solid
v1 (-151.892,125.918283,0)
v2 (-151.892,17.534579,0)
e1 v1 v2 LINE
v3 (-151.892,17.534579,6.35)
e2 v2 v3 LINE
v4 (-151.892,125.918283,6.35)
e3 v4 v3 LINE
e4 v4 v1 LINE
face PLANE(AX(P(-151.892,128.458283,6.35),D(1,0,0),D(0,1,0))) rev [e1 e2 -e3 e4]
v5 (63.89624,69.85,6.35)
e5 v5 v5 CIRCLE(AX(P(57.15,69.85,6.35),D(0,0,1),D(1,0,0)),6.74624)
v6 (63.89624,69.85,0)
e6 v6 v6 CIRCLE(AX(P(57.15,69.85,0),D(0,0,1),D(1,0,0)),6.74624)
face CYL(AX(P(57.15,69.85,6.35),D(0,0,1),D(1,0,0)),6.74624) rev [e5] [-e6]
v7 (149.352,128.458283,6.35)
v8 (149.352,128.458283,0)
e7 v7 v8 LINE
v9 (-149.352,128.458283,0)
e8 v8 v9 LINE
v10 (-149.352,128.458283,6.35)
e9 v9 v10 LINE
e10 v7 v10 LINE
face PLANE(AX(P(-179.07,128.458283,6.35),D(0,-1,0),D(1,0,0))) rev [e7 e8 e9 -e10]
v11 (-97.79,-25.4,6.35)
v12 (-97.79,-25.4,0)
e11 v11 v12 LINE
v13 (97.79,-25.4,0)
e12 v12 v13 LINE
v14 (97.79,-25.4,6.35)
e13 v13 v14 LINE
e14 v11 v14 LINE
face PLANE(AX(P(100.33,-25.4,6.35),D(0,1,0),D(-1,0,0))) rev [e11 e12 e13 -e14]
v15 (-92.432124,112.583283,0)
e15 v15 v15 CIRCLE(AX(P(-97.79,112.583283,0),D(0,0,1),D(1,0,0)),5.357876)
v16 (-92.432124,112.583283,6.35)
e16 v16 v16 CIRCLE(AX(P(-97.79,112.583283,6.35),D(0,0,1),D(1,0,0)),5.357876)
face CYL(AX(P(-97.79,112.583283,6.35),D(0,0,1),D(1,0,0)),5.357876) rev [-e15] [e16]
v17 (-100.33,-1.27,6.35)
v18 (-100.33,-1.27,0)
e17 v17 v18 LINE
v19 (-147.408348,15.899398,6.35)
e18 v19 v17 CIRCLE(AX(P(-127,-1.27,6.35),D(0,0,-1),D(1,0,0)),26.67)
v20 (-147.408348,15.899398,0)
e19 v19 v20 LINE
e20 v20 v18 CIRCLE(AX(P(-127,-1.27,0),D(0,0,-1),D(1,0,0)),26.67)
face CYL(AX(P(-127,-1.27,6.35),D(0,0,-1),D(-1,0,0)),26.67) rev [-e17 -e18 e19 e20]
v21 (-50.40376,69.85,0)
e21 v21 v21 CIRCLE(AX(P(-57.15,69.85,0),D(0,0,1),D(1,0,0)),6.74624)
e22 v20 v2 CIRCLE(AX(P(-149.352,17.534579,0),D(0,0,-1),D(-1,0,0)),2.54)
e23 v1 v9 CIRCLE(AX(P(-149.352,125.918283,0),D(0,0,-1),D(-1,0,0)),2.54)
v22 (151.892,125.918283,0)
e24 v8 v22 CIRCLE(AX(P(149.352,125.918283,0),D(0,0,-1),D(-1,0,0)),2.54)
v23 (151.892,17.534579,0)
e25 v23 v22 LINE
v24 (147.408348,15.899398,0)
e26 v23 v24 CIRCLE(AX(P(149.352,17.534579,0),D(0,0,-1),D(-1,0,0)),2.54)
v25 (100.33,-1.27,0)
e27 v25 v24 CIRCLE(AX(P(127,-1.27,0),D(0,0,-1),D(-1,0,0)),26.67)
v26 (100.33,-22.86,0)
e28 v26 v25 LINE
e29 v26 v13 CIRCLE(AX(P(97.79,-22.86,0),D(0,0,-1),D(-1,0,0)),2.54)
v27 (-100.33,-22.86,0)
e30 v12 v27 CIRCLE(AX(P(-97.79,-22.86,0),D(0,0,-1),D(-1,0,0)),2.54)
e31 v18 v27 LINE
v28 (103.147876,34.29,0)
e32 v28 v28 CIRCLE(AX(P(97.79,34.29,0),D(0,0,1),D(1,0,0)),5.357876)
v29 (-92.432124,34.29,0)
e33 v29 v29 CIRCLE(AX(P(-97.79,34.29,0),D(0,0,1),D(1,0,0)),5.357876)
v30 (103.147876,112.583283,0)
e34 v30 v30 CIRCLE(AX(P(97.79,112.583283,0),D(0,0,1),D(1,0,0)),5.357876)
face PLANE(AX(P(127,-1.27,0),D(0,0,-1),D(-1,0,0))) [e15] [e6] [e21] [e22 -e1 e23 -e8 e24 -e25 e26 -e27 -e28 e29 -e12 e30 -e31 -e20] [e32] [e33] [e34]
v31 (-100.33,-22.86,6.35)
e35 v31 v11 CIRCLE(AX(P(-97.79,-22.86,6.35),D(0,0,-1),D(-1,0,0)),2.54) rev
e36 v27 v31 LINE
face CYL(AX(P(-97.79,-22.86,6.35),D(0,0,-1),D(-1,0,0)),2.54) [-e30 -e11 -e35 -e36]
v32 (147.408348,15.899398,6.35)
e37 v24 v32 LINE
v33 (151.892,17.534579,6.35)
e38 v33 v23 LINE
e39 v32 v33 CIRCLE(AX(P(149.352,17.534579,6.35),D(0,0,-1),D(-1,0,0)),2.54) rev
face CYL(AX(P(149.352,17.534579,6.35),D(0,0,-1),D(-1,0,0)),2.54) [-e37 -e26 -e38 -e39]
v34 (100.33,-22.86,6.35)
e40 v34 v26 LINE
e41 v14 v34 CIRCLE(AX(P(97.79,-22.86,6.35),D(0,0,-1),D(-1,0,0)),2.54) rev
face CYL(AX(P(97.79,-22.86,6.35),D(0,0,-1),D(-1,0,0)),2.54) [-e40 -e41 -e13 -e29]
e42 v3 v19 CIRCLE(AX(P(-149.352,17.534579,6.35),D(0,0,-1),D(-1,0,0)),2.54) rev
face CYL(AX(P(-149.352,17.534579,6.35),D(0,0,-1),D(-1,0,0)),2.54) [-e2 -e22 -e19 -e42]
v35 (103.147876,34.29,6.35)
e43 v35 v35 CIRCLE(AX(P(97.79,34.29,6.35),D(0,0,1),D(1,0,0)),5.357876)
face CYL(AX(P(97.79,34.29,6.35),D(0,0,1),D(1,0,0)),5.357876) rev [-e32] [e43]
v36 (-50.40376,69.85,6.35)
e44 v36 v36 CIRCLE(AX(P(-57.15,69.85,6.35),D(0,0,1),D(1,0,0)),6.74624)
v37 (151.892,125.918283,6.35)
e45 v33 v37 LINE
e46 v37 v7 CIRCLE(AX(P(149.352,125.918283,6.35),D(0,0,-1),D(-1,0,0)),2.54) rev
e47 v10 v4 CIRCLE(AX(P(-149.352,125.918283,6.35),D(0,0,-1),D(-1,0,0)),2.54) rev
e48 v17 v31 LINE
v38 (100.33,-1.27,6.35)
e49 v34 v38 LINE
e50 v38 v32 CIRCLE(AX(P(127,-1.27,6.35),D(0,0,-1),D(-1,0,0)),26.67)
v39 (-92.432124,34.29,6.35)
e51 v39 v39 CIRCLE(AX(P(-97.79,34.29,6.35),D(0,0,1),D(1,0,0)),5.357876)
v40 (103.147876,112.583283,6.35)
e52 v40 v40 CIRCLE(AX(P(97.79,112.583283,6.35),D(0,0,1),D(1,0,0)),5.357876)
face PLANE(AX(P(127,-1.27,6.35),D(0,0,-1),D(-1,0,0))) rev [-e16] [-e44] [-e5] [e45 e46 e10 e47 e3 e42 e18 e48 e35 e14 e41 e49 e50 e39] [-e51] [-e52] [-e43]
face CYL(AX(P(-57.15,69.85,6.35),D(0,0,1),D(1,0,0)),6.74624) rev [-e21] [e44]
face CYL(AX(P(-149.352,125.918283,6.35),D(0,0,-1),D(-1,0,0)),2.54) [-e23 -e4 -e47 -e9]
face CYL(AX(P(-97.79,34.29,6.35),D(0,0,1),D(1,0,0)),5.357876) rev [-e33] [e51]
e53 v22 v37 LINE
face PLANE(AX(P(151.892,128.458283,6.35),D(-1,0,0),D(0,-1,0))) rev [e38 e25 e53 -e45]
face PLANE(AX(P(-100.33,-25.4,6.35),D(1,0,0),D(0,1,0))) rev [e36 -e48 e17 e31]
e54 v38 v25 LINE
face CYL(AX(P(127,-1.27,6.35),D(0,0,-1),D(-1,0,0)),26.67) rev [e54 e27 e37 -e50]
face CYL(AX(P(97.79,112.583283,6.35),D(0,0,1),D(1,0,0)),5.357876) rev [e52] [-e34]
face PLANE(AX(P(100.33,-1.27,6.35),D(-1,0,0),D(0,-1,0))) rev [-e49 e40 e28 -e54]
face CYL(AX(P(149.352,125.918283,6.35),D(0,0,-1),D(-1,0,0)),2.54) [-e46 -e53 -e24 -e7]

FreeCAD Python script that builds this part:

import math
import FreeCAD as App
import Part
import Sketcher

V = App.Vector
Q = App.Units.Quantity


def edges_at(feature, points):
    """Names of the edges that pass closest to the given points."""
    edges = feature.Shape.Edges
    near = lambda p: min(range(len(edges)), key=lambda i: edges[i].distToShape(Part.Vertex(*p))[0])
    return sorted({f"Edge{near(p) + 1}" for p in points})

doc = App.newDocument("Part")
params = doc.addObject("Spreadsheet::Sheet", "Params")
for row, (alias, value) in enumerate([
    ("sketch1_width", "1 in"),
    ("sketch1_radius", "1.05 in"),
    ("sketch1_width2", "7.9 in"),
    ("sketch1_height", "0.95 in"),
    ("pad1_length", "0.25 in"),
    ("sketch2_width", "1 in"),
    ("sketch2_radius", "1.05 in"),
    ("sketch2_width2", "1.07 in"),
    ("sketch2_height", "0.95 in"),
    ("hole_diameter", "10.715752 mm"),
    ("fillet_radius", "0.1 in"),
    ("hole2_diameter", "0.5312 in"),
], start=1):
    params.set(f"A{row}", alias)
    params.set(f"B{row}", "=" + value)
    params.setAlias(f"B{row}", alias)

body = doc.addObject("PartDesign::Body", "Body")

# Sketch on XY plane
sketch1 = doc.addObject("Sketcher::SketchObject", "Sketch")
body.addObject(sketch1)
sketch1.AttachmentSupport = (doc.XY_Plane, [""])
sketch1.MapMode = "FlatFace"
sketch1.addGeometry(Part.LineSegment(V(-179.07, 128.458283, 0), V(-179.07, -25.4, 0)), False)
sketch1.addGeometry(Part.LineSegment(V(-179.07, -25.4, 0), V(-153.67, -25.4, 0)), False)
sketch1.addGeometry(Part.LineSegment(V(-153.67, -25.4, 0), V(-153.67, -1.27, 0)), False)
sketch1.addGeometry(Part.ArcOfCircle(Part.Circle(V(-127, -1.27, 0), V(0, 0, 1), 26.67), math.radians(0), math.radians(180)), False)
sketch1.addGeometry(Part.LineSegment(V(-100.33, -1.27, 0), V(-100.33, -25.4, 0)), False)
sketch1.addGeometry(Part.LineSegment(V(-100.33, -25.4, 0), V(100.33, -25.4, 0)), False)
sketch1.addGeometry(Part.LineSegment(V(100.33, -25.4, 0), V(100.33, -1.27, 0)), False)
sketch1.addGeometry(Part.ArcOfCircle(Part.Circle(V(127, -1.27, 0), V(0, 0, 1), 26.67), math.radians(0), math.radians(180)), False)
sketch1.addGeometry(Part.LineSegment(V(153.67, -1.27, 0), V(153.67, -25.4, 0)), False)
sketch1.addGeometry(Part.LineSegment(V(153.67, -25.4, 0), V(179.07, -25.4, 0)), False)
sketch1.addGeometry(Part.LineSegment(V(179.07, -25.4, 0), V(179.07, 128.458283, 0)), False)
sketch1.addGeometry(Part.LineSegment(V(179.07, 128.458283, 0), V(-179.07, 128.458283, 0)), False)
sketch1.addConstraint(Sketcher.Constraint("Coincident", 0, 2, 1, 1))
sketch1.addConstraint(Sketcher.Constraint("Coincident", 1, 2, 2, 1))
sketch1.addConstraint(Sketcher.Constraint("Tangent", 2, 2, 3, 2))
sketch1.addConstraint(Sketcher.Constraint("Tangent", 3, 1, 4, 1))
sketch1.addConstraint(Sketcher.Constraint("Coincident", 4, 2, 5, 1))
sketch1.addConstraint(Sketcher.Constraint("Coincident", 5, 2, 6, 1))
sketch1.addConstraint(Sketcher.Constraint("Tangent", 6, 2, 7, 2))
sketch1.addConstraint(Sketcher.Constraint("Tangent", 7, 1, 8, 1))
sketch1.addConstraint(Sketcher.Constraint("Coincident", 8, 2, 9, 1))
sketch1.addConstraint(Sketcher.Constraint("Coincident", 9, 2, 10, 1))
sketch1.addConstraint(Sketcher.Constraint("Coincident", 10, 2, 11, 1))
sketch1.addConstraint(Sketcher.Constraint("Coincident", 11, 2, 0, 1))
sketch1.addConstraint(Sketcher.Constraint("Vertical", 0))
sketch1.addConstraint(Sketcher.Constraint("Horizontal", 1))
sketch1.addConstraint(Sketcher.Constraint("Vertical", 2))
sketch1.addConstraint(Sketcher.Constraint("Vertical", 4))
sketch1.addConstraint(Sketcher.Constraint("Horizontal", 5))
sketch1.addConstraint(Sketcher.Constraint("Vertical", 6))
sketch1.addConstraint(Sketcher.Constraint("Vertical", 8))
sketch1.addConstraint(Sketcher.Constraint("Horizontal", 9))
sketch1.addConstraint(Sketcher.Constraint("Vertical", 10))
sketch1.addConstraint(Sketcher.Constraint("Horizontal", 11))
sketch1.addConstraint(Sketcher.Constraint("Equal", 3, 7))
sketch1.addConstraint(Sketcher.Constraint("Symmetric", 3, 3, 7, 3, -2))
sketch1.addConstraint(Sketcher.Constraint("Symmetric", 0, 2, 9, 2, -2))
sketch1.addConstraint(Sketcher.Constraint("Horizontal", 1, 2, 4, 2))
sketch1.addConstraint(Sketcher.Constraint("DistanceX", 1, 1, 1, 2, Q("1 in")))
sketch1.addConstraint(Sketcher.Constraint("Radius", 3, Q("1.05 in")))
sketch1.addConstraint(Sketcher.Constraint("DistanceX", 5, 1, 5, 2, Q("7.9 in")))
sketch1.addConstraint(Sketcher.Constraint("DistanceY", 0, 2, -1, 1, Q("1 in")))
sketch1.addConstraint(Sketcher.Constraint("DistanceY", 2, 1, 2, 2, Q("0.95 in")))
sketch1.addConstraint(Sketcher.Constraint("DistanceY", 0, 2, 0, 1, Q("153.858283 mm")))
sketch1.setExpression("Constraints[26]", "Params.sketch1_width")
sketch1.setExpression("Constraints[27]", "Params.sketch1_radius")
sketch1.setExpression("Constraints[28]", "Params.sketch1_width2")
sketch1.setExpression("Constraints[30]", "Params.sketch1_height")
pad1 = doc.addObject("PartDesign::Pad", "Pad")
body.addObject(pad1)
pad1.Profile = sketch1
pad1.setExpression("Length", "Params.pad1_length")

# Sketch on XY plane
sketch2 = doc.addObject("Sketcher::SketchObject", "Sketch001")
body.addObject(sketch2)
sketch2.AttachmentSupport = (doc.XY_Plane, [""])
sketch2.MapMode = "FlatFace"
sketch2.addGeometry(Part.LineSegment(V(151.892, 8.304823, 0), V(151.892, 128.458283, 0)), False)
sketch2.addGeometry(Part.LineSegment(V(151.892, 128.458283, 0), V(179.07, 128.458283, 0)), False)
sketch2.addGeometry(Part.LineSegment(V(179.07, 128.458283, 0), V(179.07, -25.4, 0)), False)
sketch2.addGeometry(Part.LineSegment(V(179.07, -25.4, 0), V(153.67, -25.4, 0)), False)
sketch2.addGeometry(Part.LineSegment(V(153.67, -25.4, 0), V(153.67, -1.27, 0)), False)
sketch2.addGeometry(Part.ArcOfCircle(Part.Circle(V(127, -1.27, 0), V(0, 0, 1), 26.67), math.radians(0), math.radians(21.03947)), False)
sketch2.addGeometry(Part.LineSegment(V(-153.67, -1.27, 0), V(-153.67, -25.4, 0)), False)
sketch2.addGeometry(Part.LineSegment(V(-153.67, -25.4, 0), V(-179.07, -25.4, 0)), False)
sketch2.addGeometry(Part.LineSegment(V(-179.07, -25.4, 0), V(-179.07, 128.458283, 0)), False)
sketch2.addGeometry(Part.LineSegment(V(-179.07, 128.458283, 0), V(-151.892, 128.458283, 0)), False)
sketch2.addGeometry(Part.LineSegment(V(-151.892, 128.458283, 0), V(-151.892, 8.304823, 0)), False)
sketch2.addGeometry(Part.ArcOfCircle(Part.Circle(V(-127, -1.27, 0), V(0, 0, 1), 26.67), math.radians(158.96053), math.radians(180)), False)
sketch2.addConstraint(Sketcher.Constraint("Coincident", 0, 2, 1, 1))
sketch2.addConstraint(Sketcher.Constraint("Coincident", 1, 2, 2, 1))
sketch2.addConstraint(Sketcher.Constraint("Coincident", 2, 2, 3, 1))
sketch2.addConstraint(Sketcher.Constraint("Coincident", 3, 2, 4, 1))
sketch2.addConstraint(Sketcher.Constraint("Tangent", 4, 2, 5, 1))
sketch2.addConstraint(Sketcher.Constraint("Coincident", 5, 2, 0, 1))
sketch2.addConstraint(Sketcher.Constraint("Coincident", 6, 2, 7, 1))
sketch2.addConstraint(Sketcher.Constraint("Coincident", 7, 2, 8, 1))
sketch2.addConstraint(Sketcher.Constraint("Coincident", 8, 2, 9, 1))
sketch2.addConstraint(Sketcher.Constraint("Coincident", 9, 2, 10, 1))
sketch2.addConstraint(Sketcher.Constraint("Coincident", 10, 2, 11, 1))
sketch2.addConstraint(Sketcher.Constraint("Tangent", 11, 2, 6, 1))
sketch2.addConstraint(Sketcher.Constraint("Vertical", 0))
sketch2.addConstraint(Sketcher.Constraint("Horizontal", 1))
sketch2.addConstraint(Sketcher.Constraint("Vertical", 2))
sketch2.addConstraint(Sketcher.Constraint("Horizontal", 3))
sketch2.addConstraint(Sketcher.Constraint("Vertical", 4))
sketch2.addConstraint(Sketcher.Constraint("Vertical", 6))
sketch2.addConstraint(Sketcher.Constraint("Horizontal", 7))
sketch2.addConstraint(Sketcher.Constraint("Vertical", 8))
sketch2.addConstraint(Sketcher.Constraint("Horizontal", 9))
sketch2.addConstraint(Sketcher.Constraint("Vertical", 10))
sketch2.addConstraint(Sketcher.Constraint("Equal", 5, 11))
sketch2.addConstraint(Sketcher.Constraint("Symmetric", 5, 3, 11, 3, -2))
sketch2.addConstraint(Sketcher.Constraint("Symmetric", 2, 2, 7, 2, -2))
sketch2.addConstraint(Sketcher.Constraint("Symmetric", 0, 2, 9, 2, -2))
sketch2.addConstraint(Sketcher.Constraint("DistanceX", 3, 2, 3, 1, Q("1 in")))
sketch2.addConstraint(Sketcher.Constraint("Radius", 5, Q("1.05 in")))
sketch2.addConstraint(Sketcher.Constraint("DistanceX", -1, 1, 5, 3, Q("5 in")))
sketch2.addConstraint(Sketcher.Constraint("DistanceY", 2, 2, -1, 1, Q("1 in")))
sketch2.addConstraint(Sketcher.Constraint("DistanceX", 1, 1, 1, 2, Q("1.07 in")))
sketch2.addConstraint(Sketcher.Constraint("DistanceY", 4, 1, 4, 2, Q("0.95 in")))
sketch2.addConstraint(Sketcher.Constraint("DistanceY", 0, 1, 0, 2, Q("120.15346 mm")))
sketch2.setExpression("Constraints[26]", "Params.sketch2_width")
sketch2.setExpression("Constraints[27]", "Params.sketch2_radius")
sketch2.setExpression("Constraints[30]", "Params.sketch2_width2")
sketch2.setExpression("Constraints[31]", "Params.sketch2_height")
pocket1 = doc.addObject("PartDesign::Pocket", "Pocket")
body.addObject(pocket1)
pocket1.Profile = sketch2
pocket1.Type = "ThroughAll"
pocket1.Reversed = True

# Sketch on XY plane
sketch3 = doc.addObject("Sketcher::SketchObject", "Sketch002")
body.addObject(sketch3)
sketch3.AttachmentSupport = (doc.XY_Plane, [""])
sketch3.MapMode = "FlatFace"
sketch3.AttachmentOffset = App.Placement(V(0, 0, 0.25 * 25.4), App.Rotation())
sketch3.addGeometry(Part.Circle(V(-97.79, 34.29, 0), V(0, 0, 1), 5.357876), False)
sketch3.addGeometry(Part.Circle(V(-97.79, 112.583283, 0), V(0, 0, 1), 5.357876), False)
sketch3.addGeometry(Part.Circle(V(97.79, 34.29, 0), V(0, 0, 1), 5.357876), False)
sketch3.addGeometry(Part.Circle(V(97.79, 112.583283, 0), V(0, 0, 1), 5.357876), False)
sketch3.addConstraint(Sketcher.Constraint("Equal", 0, 1))
sketch3.addConstraint(Sketcher.Constraint("Equal", 1, 2))
sketch3.addConstraint(Sketcher.Constraint("Equal", 2, 3))
sketch3.addConstraint(Sketcher.Constraint("Symmetric", 0, 3, 2, 3, -2))
sketch3.addConstraint(Sketcher.Constraint("Symmetric", 1, 3, 3, 3, -2))
sketch3.addConstraint(Sketcher.Constraint("Vertical", 0, 3, 1, 3))
sketch3.addConstraint(Sketcher.Constraint("DistanceX", 0, 3, 2, 3, Q("7.7 in")))
sketch3.addConstraint(Sketcher.Constraint("DistanceY", -1, 1, 0, 3, Q("1.35 in")))
sketch3.addConstraint(Sketcher.Constraint("Diameter", 0, Q("10.715752 mm")))
sketch3.addConstraint(Sketcher.Constraint("DistanceY", -1, 1, 1, 3, Q("112.583283 mm")))
doc.recompute()
hole = doc.addObject("PartDesign::Hole", "Hole")
body.addObject(hole)
hole.Profile = sketch3
hole.ThreadType = "None"
hole.setExpression("Diameter", "Params.hole_diameter")
hole.DepthType = "ThroughAll"
doc.recompute()

fillet = doc.addObject("PartDesign::Fillet", "Fillet")
body.addObject(fillet)
fillet.Base = (hole, edges_at(hole, [
    (100.33, -25.4, 3.175),
    (-100.33, -25.4, 3.175),
    (151.892, 128.458, 3.175),
    (151.892, 8.305, 3.175),
    (-151.892, 8.305, 3.175),
    (-151.892, 128.458, 3.175),
]))
fillet.setExpression("Radius", "Params.fillet_radius")

# Sketch on XY plane
sketch4 = doc.addObject("Sketcher::SketchObject", "Sketch003")
body.addObject(sketch4)
sketch4.AttachmentSupport = (doc.XY_Plane, [""])
sketch4.MapMode = "FlatFace"
sketch4.AttachmentOffset = App.Placement(V(0, 0, 0.25 * 25.4), App.Rotation())
sketch4.addGeometry(Part.Circle(V(57.15, 69.85, 0), V(0, 0, 1), 6.74624), False)
sketch4.addGeometry(Part.Circle(V(-57.15, 69.85, 0), V(0, 0, 1), 6.74624), False)
sketch4.addConstraint(Sketcher.Constraint("Equal", 0, 1))
sketch4.addConstraint(Sketcher.Constraint("Symmetric", 0, 3, 1, 3, -2))
sketch4.addConstraint(Sketcher.Constraint("Diameter", 0, Q("0.5312 in")))
sketch4.addConstraint(Sketcher.Constraint("DistanceX", 1, 3, 0, 3, Q("4.5 in")))
sketch4.addConstraint(Sketcher.Constraint("DistanceY", -1, 1, 0, 3, Q("2.75 in")))
doc.recompute()
hole2 = doc.addObject("PartDesign::Hole", "Hole001")
body.addObject(hole2)
hole2.Profile = sketch4
hole2.ThreadType = "None"
hole2.setExpression("Diameter", "Params.hole2_diameter")
hole2.DepthType = "ThroughAll"

doc.recompute()
